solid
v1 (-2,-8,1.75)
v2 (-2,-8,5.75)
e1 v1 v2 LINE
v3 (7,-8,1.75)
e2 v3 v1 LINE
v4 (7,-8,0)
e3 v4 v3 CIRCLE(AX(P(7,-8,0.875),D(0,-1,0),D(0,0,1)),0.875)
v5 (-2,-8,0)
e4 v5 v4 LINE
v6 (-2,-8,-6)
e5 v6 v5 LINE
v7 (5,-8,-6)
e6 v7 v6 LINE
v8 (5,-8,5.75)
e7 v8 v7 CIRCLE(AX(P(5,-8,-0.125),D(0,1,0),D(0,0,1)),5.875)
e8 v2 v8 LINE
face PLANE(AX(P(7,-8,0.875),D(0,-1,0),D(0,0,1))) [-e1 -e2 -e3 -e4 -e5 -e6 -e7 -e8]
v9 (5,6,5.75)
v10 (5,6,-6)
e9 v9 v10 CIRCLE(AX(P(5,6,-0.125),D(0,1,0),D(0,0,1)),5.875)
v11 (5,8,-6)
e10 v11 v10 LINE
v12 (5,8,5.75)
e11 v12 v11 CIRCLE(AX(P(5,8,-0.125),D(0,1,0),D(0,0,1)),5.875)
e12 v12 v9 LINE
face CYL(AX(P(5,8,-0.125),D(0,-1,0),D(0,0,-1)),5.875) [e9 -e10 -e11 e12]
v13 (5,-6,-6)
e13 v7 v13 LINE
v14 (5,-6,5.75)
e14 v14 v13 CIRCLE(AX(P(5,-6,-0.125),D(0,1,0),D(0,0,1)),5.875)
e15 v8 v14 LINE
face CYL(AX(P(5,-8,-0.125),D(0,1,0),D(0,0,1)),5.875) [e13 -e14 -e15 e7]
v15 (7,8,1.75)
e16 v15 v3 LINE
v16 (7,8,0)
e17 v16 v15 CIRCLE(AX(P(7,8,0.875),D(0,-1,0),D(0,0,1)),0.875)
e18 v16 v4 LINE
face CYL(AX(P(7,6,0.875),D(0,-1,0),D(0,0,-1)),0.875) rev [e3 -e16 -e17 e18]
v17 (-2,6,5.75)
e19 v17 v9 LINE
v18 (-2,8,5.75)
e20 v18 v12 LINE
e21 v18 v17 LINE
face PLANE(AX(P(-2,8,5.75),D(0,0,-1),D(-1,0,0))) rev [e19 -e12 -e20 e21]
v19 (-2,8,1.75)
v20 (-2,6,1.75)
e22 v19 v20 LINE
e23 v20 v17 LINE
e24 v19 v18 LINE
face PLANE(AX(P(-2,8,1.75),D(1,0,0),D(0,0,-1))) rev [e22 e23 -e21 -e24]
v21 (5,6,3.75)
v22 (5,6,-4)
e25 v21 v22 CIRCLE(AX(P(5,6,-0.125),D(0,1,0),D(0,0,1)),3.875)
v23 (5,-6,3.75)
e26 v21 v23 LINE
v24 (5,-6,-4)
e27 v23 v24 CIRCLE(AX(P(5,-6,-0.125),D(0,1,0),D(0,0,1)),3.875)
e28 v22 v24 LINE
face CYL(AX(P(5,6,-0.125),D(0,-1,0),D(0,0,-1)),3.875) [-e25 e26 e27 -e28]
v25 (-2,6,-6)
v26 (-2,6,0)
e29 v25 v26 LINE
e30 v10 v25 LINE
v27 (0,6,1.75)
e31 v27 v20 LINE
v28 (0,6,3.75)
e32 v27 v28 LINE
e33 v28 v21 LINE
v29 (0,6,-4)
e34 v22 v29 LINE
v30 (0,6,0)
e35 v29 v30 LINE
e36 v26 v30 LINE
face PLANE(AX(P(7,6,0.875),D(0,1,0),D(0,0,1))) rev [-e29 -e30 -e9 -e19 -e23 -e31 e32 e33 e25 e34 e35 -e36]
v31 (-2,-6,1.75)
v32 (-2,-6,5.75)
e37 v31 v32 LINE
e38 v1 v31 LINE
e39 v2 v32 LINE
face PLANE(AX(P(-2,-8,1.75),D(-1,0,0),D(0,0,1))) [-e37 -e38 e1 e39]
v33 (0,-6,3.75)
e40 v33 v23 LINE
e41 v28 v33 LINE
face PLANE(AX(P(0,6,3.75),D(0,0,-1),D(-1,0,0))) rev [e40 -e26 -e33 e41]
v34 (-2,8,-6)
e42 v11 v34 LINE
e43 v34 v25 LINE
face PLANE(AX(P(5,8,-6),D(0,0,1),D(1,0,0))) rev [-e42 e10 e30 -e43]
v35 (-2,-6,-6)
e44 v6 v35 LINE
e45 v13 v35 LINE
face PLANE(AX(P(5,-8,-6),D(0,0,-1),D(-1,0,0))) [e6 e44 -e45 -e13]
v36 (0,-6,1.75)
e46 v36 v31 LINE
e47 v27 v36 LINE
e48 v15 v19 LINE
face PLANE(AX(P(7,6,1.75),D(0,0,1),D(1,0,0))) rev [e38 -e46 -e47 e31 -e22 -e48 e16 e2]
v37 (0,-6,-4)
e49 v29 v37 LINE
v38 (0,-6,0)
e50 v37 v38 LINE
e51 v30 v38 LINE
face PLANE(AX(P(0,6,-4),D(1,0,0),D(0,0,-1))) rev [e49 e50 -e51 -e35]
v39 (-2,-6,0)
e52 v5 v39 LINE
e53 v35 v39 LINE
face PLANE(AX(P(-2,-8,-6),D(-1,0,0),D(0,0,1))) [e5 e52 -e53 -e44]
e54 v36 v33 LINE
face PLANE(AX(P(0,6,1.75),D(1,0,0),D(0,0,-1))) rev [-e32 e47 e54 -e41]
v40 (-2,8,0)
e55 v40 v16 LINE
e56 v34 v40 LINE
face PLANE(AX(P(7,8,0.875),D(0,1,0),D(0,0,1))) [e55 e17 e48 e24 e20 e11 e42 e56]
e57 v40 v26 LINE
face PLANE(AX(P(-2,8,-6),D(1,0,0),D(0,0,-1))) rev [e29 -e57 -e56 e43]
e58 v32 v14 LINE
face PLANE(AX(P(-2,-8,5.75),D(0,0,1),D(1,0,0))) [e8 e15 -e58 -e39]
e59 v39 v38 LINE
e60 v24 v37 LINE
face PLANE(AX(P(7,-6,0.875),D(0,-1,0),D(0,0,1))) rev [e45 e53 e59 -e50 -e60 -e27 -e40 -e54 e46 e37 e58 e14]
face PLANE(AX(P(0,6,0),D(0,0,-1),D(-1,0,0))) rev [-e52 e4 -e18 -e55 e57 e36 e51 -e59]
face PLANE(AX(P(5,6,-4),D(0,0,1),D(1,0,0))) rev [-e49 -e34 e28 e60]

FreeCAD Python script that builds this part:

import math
import FreeCAD as App
import Part
import Sketcher
from FreeCAD import Vector

doc = App.newDocument("Part")
params = doc.addObject("Spreadsheet::Sheet", "Params")
for row, (alias, value) in enumerate([
    ("sketch1_width", "7 mm"),
    ("sketch1_width2", "5 mm"),
    ("sketch1_height", "2 mm"),
    ("sketch1_height2", "4 mm"),
    ("pad1_length", "12 mm"),
    ("sketch2_width", "7 mm"),
    ("sketch2_width2", "9 mm"),
    ("sketch2_height", "6 mm"),
    ("sketch2_height2", "4 mm"),
    ("pad2_length", "2 mm"),
], start=1):
    params.set(f"A{row}", alias)
    params.set(f"B{row}", "=" + value)
    params.setAlias(f"B{row}", alias)

body = doc.addObject("PartDesign::Body", "Body")

# Sketch on XZ plane
sketch1 = body.newObject("Sketcher::SketchObject", "Sketch")
sketch1.AttachmentSupport = (doc.getObject("XZ_Plane"), [""])
sketch1.MapMode = "FlatFace"
sketch1.addGeometry([
    Part.LineSegment(Vector(0, 0, 0), Vector(7, 0, 0)),  # 0
    Part.ArcOfCircle(Part.Circle(Vector(7, 0.9, 0), Vector(0, 0, 1), 0.9), math.radians(-90), math.radians(90)),  # 1
    Part.LineSegment(Vector(7, 1.8, 0), Vector(0, 1.8, 0)),  # 2
    Part.LineSegment(Vector(0, 1.8, 0), Vector(0, 3.8, 0)),  # 3
    Part.LineSegment(Vector(0, 3.8, 0), Vector(5, 3.8, 0)),  # 4
    Part.ArcOfCircle(Part.Circle(Vector(5, -0.1, 0), Vector(0, 0, 1), 3.9), math.radians(-90), math.radians(90)),  # 5
    Part.LineSegment(Vector(5, -4, 0), Vector(0, -4, 0)),  # 6
    Part.LineSegment(Vector(0, -4, 0), Vector(0, 0, 0)),  # 7
], False)
sketch1.addConstraint([
    Sketcher.Constraint("Tangent", 0, 2, 1, 1),
    Sketcher.Constraint("Tangent", 1, 2, 2, 1),
    Sketcher.Constraint("Coincident", 2, 2, 3, 1),
    Sketcher.Constraint("Coincident", 3, 2, 4, 1),
    Sketcher.Constraint("Tangent", 4, 2, 5, 2),
    Sketcher.Constraint("Tangent", 5, 1, 6, 1),
    Sketcher.Constraint("Coincident", 6, 2, 7, 1),
    Sketcher.Constraint("Coincident", 7, 2, 0, 1),
    Sketcher.Constraint("Horizontal", 0),
    Sketcher.Constraint("Horizontal", 2),
    Sketcher.Constraint("Vertical", 3),
    Sketcher.Constraint("Horizontal", 4),
    Sketcher.Constraint("Horizontal", 6),
    Sketcher.Constraint("Vertical", 7),
    Sketcher.Constraint("Coincident", 7, 2, -1, 1),
    Sketcher.Constraint("PointOnObject", 2, 2, -2),
    Sketcher.Constraint("DistanceX", 0, 1, 0, 2, 7.0),
    Sketcher.Constraint("DistanceX", 4, 1, 4, 2, 5.0),
    Sketcher.Constraint("DistanceY", 3, 1, 3, 2, 2.0),
    Sketcher.Constraint("DistanceY", 7, 1, 7, 2, 4.0),
    Sketcher.Constraint("Radius", 1, 0.875),
])
sketch1.setExpression("Constraints[16]", "Params.sketch1_width")
sketch1.setExpression("Constraints[17]", "Params.sketch1_width2")
sketch1.setExpression("Constraints[18]", "Params.sketch1_height")
sketch1.setExpression("Constraints[19]", "Params.sketch1_height2")
pad1 = body.newObject("PartDesign::Pad", "Pad")
pad1.Profile = sketch1
pad1.setExpression("Length", "Params.pad1_length")
pad1.Midplane = True

# Sketch on XZ plane
sketch2 = body.newObject("Sketcher::SketchObject", "Sketch001")
sketch2.AttachmentSupport = (doc.getObject("XZ_Plane"), [""])
sketch2.MapMode = "FlatFace"
sketch2.AttachmentOffset = App.Placement(Vector(0, 0, -8), App.Rotation())
sketch2.addGeometry([
    Part.LineSegment(Vector(5, -6, 0), Vector(-2, -6, 0)),  # 0
    Part.LineSegment(Vector(-2, -6, 0), Vector(-2, 0, 0)),  # 1
    Part.LineSegment(Vector(-2, 0, 0), Vector(7, 0, 0)),  # 2
    Part.ArcOfCircle(Part.Circle(Vector(7, 0.9, 0), Vector(0, 0, 1), 0.9), math.radians(-90), math.radians(90)),  # 3
    Part.LineSegment(Vector(7, 1.8, 0), Vector(-2, 1.8, 0)),  # 4
    Part.LineSegment(Vector(-2, 1.8, 0), Vector(-2, 5.8, 0)),  # 5
    Part.LineSegment(Vector(-2, 5.8, 0), Vector(5, 5.8, 0)),  # 6
    Part.ArcOfCircle(Part.Circle(Vector(5, -0.1, 0), Vector(0, 0, 1), 5.9), math.radians(-90), math.radians(90)),  # 7
], False)
sketch2.addConstraint([
    Sketcher.Constraint("Coincident", 0, 2, 1, 1),
    Sketcher.Constraint("Coincident", 1, 2, 2, 1),
    Sketcher.Constraint("Tangent", 2, 2, 3, 1),
    Sketcher.Constraint("Tangent", 3, 2, 4, 1),
    Sketcher.Constraint("Coincident", 4, 2, 5, 1),
    Sketcher.Constraint("Coincident", 5, 2, 6, 1),
    Sketcher.Constraint("Tangent", 6, 2, 7, 2),
    Sketcher.Constraint("Tangent", 7, 1, 0, 1),
    Sketcher.Constraint("Horizontal", 0),
    Sketcher.Constraint("Vertical", 1),
    Sketcher.Constraint("Horizontal", 2),
    Sketcher.Constraint("Horizontal", 4),
    Sketcher.Constraint("Vertical", 5),
    Sketcher.Constraint("Horizontal", 6),
    Sketcher.Constraint("PointOnObject", 1, 2, -1),
    Sketcher.Constraint("Vertical", 1, 2, 4, 2),
    Sketcher.Constraint("DistanceX", 0, 2, 0, 1, 7.0),
    Sketcher.Constraint("DistanceX", 2, 1, 2, 2, 9.0),
    Sketcher.Constraint("DistanceY", 1, 1, 1, 2, 6.0),
    Sketcher.Constraint("DistanceY", 5, 1, 5, 2, 4.0),
    Sketcher.Constraint("DistanceX", -1, 1, 3, 3, 7.0),
    Sketcher.Constraint("Radius", 3, 0.875),
])
sketch2.setExpression("Constraints[16]", "Params.sketch2_width")
sketch2.setExpression("Constraints[17]", "Params.sketch2_width2")
sketch2.setExpression("Constraints[18]", "Params.sketch2_height")
sketch2.setExpression("Constraints[19]", "Params.sketch2_height2")
pad2 = body.newObject("PartDesign::Pad", "Pad001")
pad2.Profile = sketch2
pad2.setExpression("Length", "Params.pad2_length")
doc.recompute()

mirrored = body.newObject("PartDesign::Mirrored", "Mirrored")
mirrored.Originals = [pad2]
mirrored.MirrorPlane = (doc.getObject("XZ_Plane"), [""])
body.Tip = mirrored

doc.recompute()
